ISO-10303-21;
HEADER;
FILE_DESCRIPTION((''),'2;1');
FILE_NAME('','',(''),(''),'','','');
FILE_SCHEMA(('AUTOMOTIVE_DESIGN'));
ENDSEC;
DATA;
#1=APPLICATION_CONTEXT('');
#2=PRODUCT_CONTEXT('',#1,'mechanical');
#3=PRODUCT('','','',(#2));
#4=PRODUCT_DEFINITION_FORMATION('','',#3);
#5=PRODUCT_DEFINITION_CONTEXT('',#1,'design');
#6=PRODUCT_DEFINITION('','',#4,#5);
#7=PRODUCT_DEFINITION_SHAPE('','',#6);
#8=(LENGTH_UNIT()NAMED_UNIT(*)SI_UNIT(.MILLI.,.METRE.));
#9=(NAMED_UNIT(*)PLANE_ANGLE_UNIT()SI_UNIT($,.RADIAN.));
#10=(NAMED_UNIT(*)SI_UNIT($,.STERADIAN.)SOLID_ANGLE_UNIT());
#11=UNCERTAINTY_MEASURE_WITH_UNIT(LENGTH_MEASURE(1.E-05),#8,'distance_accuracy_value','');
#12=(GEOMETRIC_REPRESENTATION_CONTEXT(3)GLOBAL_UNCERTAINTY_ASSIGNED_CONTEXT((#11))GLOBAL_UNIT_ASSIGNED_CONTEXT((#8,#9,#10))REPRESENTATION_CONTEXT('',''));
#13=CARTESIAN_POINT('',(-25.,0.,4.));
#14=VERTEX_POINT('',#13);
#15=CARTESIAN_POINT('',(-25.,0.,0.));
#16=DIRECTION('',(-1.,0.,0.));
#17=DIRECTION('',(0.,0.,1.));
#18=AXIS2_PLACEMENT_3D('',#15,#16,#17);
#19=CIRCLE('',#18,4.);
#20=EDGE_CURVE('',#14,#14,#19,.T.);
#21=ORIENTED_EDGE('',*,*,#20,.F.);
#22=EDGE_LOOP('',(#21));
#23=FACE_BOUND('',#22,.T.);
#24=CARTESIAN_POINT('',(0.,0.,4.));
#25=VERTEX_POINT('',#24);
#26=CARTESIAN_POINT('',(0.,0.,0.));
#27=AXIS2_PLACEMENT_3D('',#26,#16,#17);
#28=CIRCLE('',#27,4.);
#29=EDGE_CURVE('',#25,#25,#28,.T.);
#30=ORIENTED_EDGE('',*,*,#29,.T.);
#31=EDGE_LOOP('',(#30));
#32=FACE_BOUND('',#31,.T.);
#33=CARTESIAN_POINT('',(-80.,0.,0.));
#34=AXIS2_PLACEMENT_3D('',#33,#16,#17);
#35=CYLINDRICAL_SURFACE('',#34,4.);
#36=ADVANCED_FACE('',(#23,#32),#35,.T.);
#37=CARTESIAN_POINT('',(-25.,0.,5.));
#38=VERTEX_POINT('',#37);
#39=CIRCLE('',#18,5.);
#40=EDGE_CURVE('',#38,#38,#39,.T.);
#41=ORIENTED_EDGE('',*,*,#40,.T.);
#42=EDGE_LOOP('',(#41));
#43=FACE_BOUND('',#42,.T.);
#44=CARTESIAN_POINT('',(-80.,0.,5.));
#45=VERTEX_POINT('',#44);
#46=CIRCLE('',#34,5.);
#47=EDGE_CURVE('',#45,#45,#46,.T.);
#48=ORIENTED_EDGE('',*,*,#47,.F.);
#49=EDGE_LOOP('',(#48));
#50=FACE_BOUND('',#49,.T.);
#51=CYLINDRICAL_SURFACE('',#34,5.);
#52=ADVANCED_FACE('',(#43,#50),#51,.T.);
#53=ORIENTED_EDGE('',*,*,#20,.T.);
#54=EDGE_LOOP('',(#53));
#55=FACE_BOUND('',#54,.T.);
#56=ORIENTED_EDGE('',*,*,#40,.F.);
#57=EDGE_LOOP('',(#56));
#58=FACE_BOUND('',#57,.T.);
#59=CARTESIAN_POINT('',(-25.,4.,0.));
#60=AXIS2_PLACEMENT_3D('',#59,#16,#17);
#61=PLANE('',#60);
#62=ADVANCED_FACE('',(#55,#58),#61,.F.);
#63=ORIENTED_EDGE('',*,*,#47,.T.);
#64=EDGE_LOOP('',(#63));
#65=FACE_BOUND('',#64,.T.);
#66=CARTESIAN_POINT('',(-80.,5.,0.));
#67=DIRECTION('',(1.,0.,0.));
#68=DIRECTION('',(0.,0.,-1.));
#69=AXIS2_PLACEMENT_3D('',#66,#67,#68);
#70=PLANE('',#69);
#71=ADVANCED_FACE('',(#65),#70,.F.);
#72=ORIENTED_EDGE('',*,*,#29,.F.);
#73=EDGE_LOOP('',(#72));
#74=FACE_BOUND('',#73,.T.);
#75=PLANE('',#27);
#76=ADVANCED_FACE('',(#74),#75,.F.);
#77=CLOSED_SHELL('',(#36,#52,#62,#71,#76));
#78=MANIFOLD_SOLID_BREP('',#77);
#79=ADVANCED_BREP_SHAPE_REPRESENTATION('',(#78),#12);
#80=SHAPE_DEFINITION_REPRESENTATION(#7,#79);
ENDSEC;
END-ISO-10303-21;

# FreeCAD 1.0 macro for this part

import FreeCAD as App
import Part
import Sketcher
Q = App.Units.Quantity


def add_polygon(sketch, points):
    """Adds a closed chain of lines whose ends are joined by coincident constraints."""
    first, n = sketch.GeometryCount, len(points)
    for a, b in zip(points, points[1:] + points[:1]):
        sketch.addGeometry(Part.LineSegment(App.Vector(*a, 0), App.Vector(*b, 0)), False)
    for i in range(n):
        sketch.addConstraint(Sketcher.Constraint("Coincident", first + i, 2, first + (i + 1) % n, 1))

doc = App.newDocument("Part")
body = doc.addObject("PartDesign::Body", "Body")

sketch1 = body.newObject("Sketcher::SketchObject", "Sketch")
sketch1.AttachmentSupport = (doc.getObject("XY_Plane"), [""])
sketch1.MapMode = "FlatFace"
add_polygon(sketch1, [(0, 0), (0, 4), (-25, 4), (-25, 5), (-80, 5), (-80, 0)])
sketch1.addConstraint(Sketcher.Constraint("Vertical", 0))
sketch1.addConstraint(Sketcher.Constraint("Horizontal", 1))
sketch1.addConstraint(Sketcher.Constraint("Vertical", 2))
sketch1.addConstraint(Sketcher.Constraint("Horizontal", 3))
sketch1.addConstraint(Sketcher.Constraint("Vertical", 4))
sketch1.addConstraint(Sketcher.Constraint("Horizontal", 5))
sketch1.addConstraint(Sketcher.Constraint("Coincident", 5, 2, -1, 1))
sketch1.addConstraint(Sketcher.Constraint("DistanceX", 1, 2, 1, 1, Q("25 mm")))
sketch1.addConstraint(Sketcher.Constraint("DistanceX", 3, 2, 3, 1, Q("55 mm")))
sketch1.addConstraint(Sketcher.Constraint("DistanceY", 0, 1, 0, 2, Q("4 mm")))
sketch1.addConstraint(Sketcher.Constraint("DistanceY", 2, 1, 2, 2, Q("1 mm")))
revolution = body.newObject("PartDesign::Revolution", "Revolution")
revolution.Profile = sketch1
revolution.ReferenceAxis = (sketch1, ["H_Axis"])
revolution.Angle = 360

doc.recompute()
